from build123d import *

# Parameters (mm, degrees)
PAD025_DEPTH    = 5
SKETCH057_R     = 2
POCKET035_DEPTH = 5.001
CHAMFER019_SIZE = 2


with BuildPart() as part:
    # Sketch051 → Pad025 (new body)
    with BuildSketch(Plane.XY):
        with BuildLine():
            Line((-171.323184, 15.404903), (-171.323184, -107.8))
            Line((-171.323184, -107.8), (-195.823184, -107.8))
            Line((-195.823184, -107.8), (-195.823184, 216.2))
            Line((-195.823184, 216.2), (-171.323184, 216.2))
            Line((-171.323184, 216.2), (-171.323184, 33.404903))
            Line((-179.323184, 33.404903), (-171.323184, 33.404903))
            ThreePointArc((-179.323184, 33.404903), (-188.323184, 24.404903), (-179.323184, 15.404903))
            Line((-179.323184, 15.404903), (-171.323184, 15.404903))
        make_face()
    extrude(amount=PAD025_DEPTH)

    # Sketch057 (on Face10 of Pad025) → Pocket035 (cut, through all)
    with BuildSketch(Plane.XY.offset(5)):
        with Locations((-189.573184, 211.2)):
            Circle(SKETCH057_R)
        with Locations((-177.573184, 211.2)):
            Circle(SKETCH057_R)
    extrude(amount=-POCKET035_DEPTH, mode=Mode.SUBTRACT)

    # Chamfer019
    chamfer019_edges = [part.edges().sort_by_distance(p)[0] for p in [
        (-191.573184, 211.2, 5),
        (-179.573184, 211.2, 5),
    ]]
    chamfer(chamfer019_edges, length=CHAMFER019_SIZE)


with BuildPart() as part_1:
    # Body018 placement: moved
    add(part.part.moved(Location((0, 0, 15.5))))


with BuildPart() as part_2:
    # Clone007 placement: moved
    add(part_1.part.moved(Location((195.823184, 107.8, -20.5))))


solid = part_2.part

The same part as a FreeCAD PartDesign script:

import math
import FreeCAD as App
import Part
import Sketcher

V = App.Vector


def edges_at(feature, points):
    """Names of the edges that pass closest to the given points."""
    edges = feature.Shape.Edges
    near = lambda p: min(range(len(edges)), key=lambda i: edges[i].distToShape(Part.Vertex(*p))[0])
    return sorted({f"Edge{near(p) + 1}" for p in points})

doc = App.newDocument("Part")
body = doc.addObject("PartDesign::Body", "Body")

# Sketch on XY plane
sketch1 = body.newObject("Sketcher::SketchObject", "Sketch")
sketch1.AttachmentSupport = (doc.getObject("XY_Plane"), [""])
sketch1.MapMode = "FlatFace"
sketch1.addGeometry([
    Part.LineSegment(V(-171, -108, 0), V(-171, 15, 0)),  # 0
    Part.LineSegment(V(-171, 15, 0), V(-179, 15, 0)),  # 1
    Part.ArcOfCircle(Part.Circle(V(-179, 24, 0), V(0, 0, 1), 9), math.radians(90), math.radians(270)),  # 2
    Part.LineSegment(V(-179, 33, 0), V(-171, 33, 0)),  # 3
    Part.LineSegment(V(-171, 33, 0), V(-171, 216, 0)),  # 4
    Part.LineSegment(V(-171, 216, 0), V(-196, 216, 0)),  # 5
    Part.LineSegment(V(-196, 216, 0), V(-196, -108, 0)),  # 6
    Part.LineSegment(V(-196, -108, 0), V(-171, -108, 0)),  # 7
], False)
sketch1.addConstraint([
    Sketcher.Constraint("Coincident", 0, 2, 1, 1),
    Sketcher.Constraint("Tangent", 1, 2, 2, 2),
    Sketcher.Constraint("Tangent", 2, 1, 3, 1),
    Sketcher.Constraint("Coincident", 3, 2, 4, 1),
    Sketcher.Constraint("Coincident", 4, 2, 5, 1),
    Sketcher.Constraint("Coincident", 5, 2, 6, 1),
    Sketcher.Constraint("Coincident", 6, 2, 7, 1),
    Sketcher.Constraint("Coincident", 7, 2, 0, 1),
    Sketcher.Constraint("Vertical", 0),
    Sketcher.Constraint("Horizontal", 1),
    Sketcher.Constraint("Horizontal", 3),
    Sketcher.Constraint("Vertical", 4),
    Sketcher.Constraint("Horizontal", 5),
    Sketcher.Constraint("Vertical", 6),
    Sketcher.Constraint("Horizontal", 7),
    Sketcher.Constraint("Vertical", 0, 2, 3, 2),
    Sketcher.Constraint("Radius", 2, 9.0),
    Sketcher.Constraint("DistanceX", 1, 2, 1, 1, 8.0),
    Sketcher.Constraint("DistanceY", 6, 2, 6, 1, 324.0),
    Sketcher.Constraint("DistanceX", 5, 2, 5, 1, 24.5),
    Sketcher.Constraint("DistanceY", -1, 1, 4, 2, 216.2),
    Sketcher.Constraint("DistanceY", 0, 1, 0, 2, 123.204903),
    Sketcher.Constraint("DistanceX", 2, 3, -1, 1, 179.323184),
])
pad1 = body.newObject("PartDesign::Pad", "Pad")
pad1.Profile = sketch1
pad1.Length = 5

# Sketch on XY plane
sketch2 = body.newObject("Sketcher::SketchObject", "Sketch001")
sketch2.AttachmentSupport = (doc.getObject("XY_Plane"), [""])
sketch2.MapMode = "FlatFace"
sketch2.AttachmentOffset = App.Placement(V(0, 0, 5), App.Rotation())
sketch2.addGeometry([
    Part.Circle(V(-189.6, 211.2, 0), V(0, 0, 1), 2),
    Part.Circle(V(-177.6, 211.2, 0), V(0, 0, 1), 2),
], False)
sketch2.addConstraint([
    Sketcher.Constraint("Equal", 0, 1),
    Sketcher.Constraint("Horizontal", 0, 3, 1, 3),
    Sketcher.Constraint("Diameter", 0, 4.0),
    Sketcher.Constraint("DistanceX", 0, 3, 1, 3, 12.0),
    Sketcher.Constraint("DistanceY", -1, 1, 0, 3, 211.2),
    Sketcher.Constraint("DistanceX", 0, 3, -1, 1, 189.573184),
])
pocket1 = body.newObject("PartDesign::Pocket", "Pocket")
pocket1.Profile = sketch2
pocket1.Type = "ThroughAll"
doc.recompute()

chamfer = body.newObject("PartDesign::Chamfer", "Chamfer")
chamfer.Base = (pocket1, edges_at(pocket1, [(-191.573, 211.2, 5), (-179.573, 211.2, 5)]))
chamfer.Size = 2
body2 = doc.addObject("PartDesign::Body", "Body001")
doc.recompute()

body.Placement = App.Placement(V(0, 0, 15.5), App.Rotation(V(0, 0, 1), 0))
boolean = body2.newObject("PartDesign::Boolean", "Boolean")
boolean.Type = "Fuse"
boolean.addObjects([body])
body3 = doc.addObject("PartDesign::Body", "Body002")
doc.recompute()

body2.Placement = App.Placement(V(195.823184, 107.8, -20.5), App.Rotation(V(0, 0, 1), 0))
boolean2 = body3.newObject("PartDesign::Boolean", "Boolean001")
boolean2.Type = "Fuse"
boolean2.addObjects([body2])

doc.recompute()
